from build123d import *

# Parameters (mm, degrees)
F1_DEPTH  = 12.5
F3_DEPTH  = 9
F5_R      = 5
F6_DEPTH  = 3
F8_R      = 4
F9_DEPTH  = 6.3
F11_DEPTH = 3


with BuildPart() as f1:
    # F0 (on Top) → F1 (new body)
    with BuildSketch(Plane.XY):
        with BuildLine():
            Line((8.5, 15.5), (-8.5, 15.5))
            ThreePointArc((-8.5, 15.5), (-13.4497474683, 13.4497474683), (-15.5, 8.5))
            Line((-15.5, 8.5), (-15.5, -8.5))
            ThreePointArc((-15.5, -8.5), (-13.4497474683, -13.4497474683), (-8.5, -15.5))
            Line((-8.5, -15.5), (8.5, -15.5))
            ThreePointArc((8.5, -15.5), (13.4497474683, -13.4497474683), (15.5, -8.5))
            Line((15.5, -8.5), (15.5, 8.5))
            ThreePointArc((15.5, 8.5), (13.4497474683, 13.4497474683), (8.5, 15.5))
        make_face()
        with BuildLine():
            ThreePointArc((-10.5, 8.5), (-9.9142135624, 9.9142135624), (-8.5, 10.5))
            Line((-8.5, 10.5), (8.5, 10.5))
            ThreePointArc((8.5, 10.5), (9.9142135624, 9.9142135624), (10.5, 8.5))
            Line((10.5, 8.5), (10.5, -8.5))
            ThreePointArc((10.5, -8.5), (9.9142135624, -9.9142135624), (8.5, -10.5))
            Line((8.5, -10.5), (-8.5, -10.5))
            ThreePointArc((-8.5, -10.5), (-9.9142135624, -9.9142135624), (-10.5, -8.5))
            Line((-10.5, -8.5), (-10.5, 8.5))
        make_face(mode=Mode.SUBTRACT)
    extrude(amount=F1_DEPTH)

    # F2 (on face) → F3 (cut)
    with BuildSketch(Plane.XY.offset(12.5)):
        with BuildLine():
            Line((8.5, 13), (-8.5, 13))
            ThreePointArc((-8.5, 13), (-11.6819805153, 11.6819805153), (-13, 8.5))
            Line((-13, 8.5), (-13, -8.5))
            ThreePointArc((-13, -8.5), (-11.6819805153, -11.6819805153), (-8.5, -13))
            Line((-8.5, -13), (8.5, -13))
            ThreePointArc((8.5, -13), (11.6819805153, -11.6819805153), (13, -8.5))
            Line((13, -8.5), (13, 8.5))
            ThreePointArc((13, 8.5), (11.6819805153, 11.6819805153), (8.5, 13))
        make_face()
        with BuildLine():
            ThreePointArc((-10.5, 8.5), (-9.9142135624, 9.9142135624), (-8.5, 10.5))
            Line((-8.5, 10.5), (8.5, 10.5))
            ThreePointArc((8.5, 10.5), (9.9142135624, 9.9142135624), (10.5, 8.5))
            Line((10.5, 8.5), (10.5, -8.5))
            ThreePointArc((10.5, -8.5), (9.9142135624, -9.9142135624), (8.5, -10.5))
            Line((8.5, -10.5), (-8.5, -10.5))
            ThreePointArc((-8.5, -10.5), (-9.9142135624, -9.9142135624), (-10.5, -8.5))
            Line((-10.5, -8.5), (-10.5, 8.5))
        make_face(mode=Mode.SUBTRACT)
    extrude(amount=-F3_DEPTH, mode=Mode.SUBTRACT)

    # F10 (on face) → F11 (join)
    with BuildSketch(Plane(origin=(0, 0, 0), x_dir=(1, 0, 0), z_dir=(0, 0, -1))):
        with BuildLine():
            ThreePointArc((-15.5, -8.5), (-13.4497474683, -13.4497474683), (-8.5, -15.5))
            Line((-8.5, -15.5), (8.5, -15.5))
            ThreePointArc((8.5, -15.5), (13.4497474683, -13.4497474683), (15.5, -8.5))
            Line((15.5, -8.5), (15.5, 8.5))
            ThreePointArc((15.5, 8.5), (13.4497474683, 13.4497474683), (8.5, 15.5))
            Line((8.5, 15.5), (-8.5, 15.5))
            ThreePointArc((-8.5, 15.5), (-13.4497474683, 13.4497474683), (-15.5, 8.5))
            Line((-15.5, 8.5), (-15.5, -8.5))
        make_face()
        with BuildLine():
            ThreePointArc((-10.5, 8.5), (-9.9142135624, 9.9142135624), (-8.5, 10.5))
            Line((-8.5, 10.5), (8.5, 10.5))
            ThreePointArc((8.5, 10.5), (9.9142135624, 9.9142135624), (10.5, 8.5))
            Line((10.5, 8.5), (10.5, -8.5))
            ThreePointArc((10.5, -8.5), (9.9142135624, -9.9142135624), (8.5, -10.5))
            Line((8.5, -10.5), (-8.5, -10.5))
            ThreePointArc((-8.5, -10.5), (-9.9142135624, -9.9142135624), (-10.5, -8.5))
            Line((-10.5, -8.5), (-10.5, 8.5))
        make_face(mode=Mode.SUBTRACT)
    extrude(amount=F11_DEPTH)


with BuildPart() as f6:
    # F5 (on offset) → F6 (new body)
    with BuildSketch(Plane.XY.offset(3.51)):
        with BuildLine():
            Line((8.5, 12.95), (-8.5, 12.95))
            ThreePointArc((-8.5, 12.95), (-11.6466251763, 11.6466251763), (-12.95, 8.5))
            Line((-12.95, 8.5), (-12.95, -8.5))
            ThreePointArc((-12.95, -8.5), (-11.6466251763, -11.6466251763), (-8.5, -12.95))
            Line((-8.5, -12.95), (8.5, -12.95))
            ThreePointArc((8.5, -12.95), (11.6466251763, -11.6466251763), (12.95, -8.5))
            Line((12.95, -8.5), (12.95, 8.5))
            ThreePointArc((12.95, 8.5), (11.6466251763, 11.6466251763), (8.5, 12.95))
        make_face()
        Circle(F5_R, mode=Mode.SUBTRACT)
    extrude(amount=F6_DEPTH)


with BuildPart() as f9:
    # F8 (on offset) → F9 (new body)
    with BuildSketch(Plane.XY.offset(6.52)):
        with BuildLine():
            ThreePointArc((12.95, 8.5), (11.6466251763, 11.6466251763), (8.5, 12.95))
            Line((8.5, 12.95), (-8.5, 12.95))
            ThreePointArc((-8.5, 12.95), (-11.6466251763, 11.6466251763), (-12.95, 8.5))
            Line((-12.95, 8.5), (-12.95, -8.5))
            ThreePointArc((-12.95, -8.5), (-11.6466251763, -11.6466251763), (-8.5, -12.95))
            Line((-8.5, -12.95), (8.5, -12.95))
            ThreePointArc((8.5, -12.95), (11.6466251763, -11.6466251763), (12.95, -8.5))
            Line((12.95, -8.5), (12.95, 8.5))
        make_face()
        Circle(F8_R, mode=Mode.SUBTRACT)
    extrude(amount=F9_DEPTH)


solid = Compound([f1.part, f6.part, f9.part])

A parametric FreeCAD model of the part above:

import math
import FreeCAD as App
import Part
import Sketcher

V = App.Vector

doc = App.newDocument("Part")
params = doc.addObject("Spreadsheet::Sheet", "Params")
for row, (alias, value) in enumerate([
    ("sketch1_radius", "7 mm"),
    ("sketch1_radius2", "2 mm"),
    ("sketch1_width", "17 mm"),
    ("pad1_length", "12.5 mm"),
    ("sketch2_radius", "2 mm"),
    ("sketch2_radius2", "4.5 mm"),
    ("sketch2_width", "17 mm"),
    ("pocket1_length", "9 mm"),
    ("sketch3_radius", "7 mm"),
    ("sketch3_radius2", "2 mm"),
    ("sketch3_width", "17 mm"),
    ("pad2_length", "3 mm"),
    ("sketch4_diameter", "10 mm"),
    ("sketch4_width", "17 mm"),
    ("sketch4_radius", "4.45 mm"),
    ("pad3_length", "3 mm"),
    ("sketch5_diameter", "8 mm"),
    ("sketch5_width", "17 mm"),
    ("sketch5_radius", "4.45 mm"),
    ("pad4_length", "6.3 mm"),
], start=1):
    params.set(f"A{row}", alias)
    params.set(f"B{row}", "=" + value)
    params.setAlias(f"B{row}", alias)

body = doc.addObject("PartDesign::Body", "Body")

# Sketch on XY plane
sketch1 = doc.addObject("Sketcher::SketchObject", "Sketch")
body.addObject(sketch1)
sketch1.AttachmentSupport = (doc.XY_Plane, [""])
sketch1.MapMode = "FlatFace"
sketch1.addGeometry([
    Part.LineSegment(V(8.5, 15.5, 0), V(-8.5, 15.5, 0)),  # 0
    Part.ArcOfCircle(Part.Circle(V(-8.5, 8.5, 0), V(0, 0, 1), 7), math.radians(90), math.radians(180)),  # 1
    Part.LineSegment(V(-15.5, 8.5, 0), V(-15.5, -8.5, 0)),  # 2
    Part.ArcOfCircle(Part.Circle(V(-8.5, -8.5, 0), V(0, 0, 1), 7), math.radians(180), math.radians(270)),  # 3
    Part.LineSegment(V(-8.5, -15.5, 0), V(8.5, -15.5, 0)),  # 4
    Part.ArcOfCircle(Part.Circle(V(8.5, -8.5, 0), V(0, 0, 1), 7), math.radians(-90), math.radians(0)),  # 5
    Part.LineSegment(V(15.5, -8.5, 0), V(15.5, 8.5, 0)),  # 6
    Part.ArcOfCircle(Part.Circle(V(8.5, 8.5, 0), V(0, 0, 1), 7), math.radians(0), math.radians(90)),  # 7
    Part.LineSegment(V(-10.5, -8.5, 0), V(-10.5, 8.5, 0)),  # 8
    Part.ArcOfCircle(Part.Circle(V(-8.5, 8.5, 0), V(0, 0, 1), 2), math.radians(90), math.radians(180)),  # 9
    Part.LineSegment(V(-8.5, 10.5, 0), V(8.5, 10.5, 0)),  # 10
    Part.ArcOfCircle(Part.Circle(V(8.5, 8.5, 0), V(0, 0, 1), 2), math.radians(0), math.radians(90)),  # 11
    Part.LineSegment(V(10.5, 8.5, 0), V(10.5, -8.5, 0)),  # 12
    Part.ArcOfCircle(Part.Circle(V(8.5, -8.5, 0), V(0, 0, 1), 2), math.radians(-90), math.radians(0)),  # 13
    Part.LineSegment(V(8.5, -10.5, 0), V(-8.5, -10.5, 0)),  # 14
    Part.ArcOfCircle(Part.Circle(V(-8.5, -8.5, 0), V(0, 0, 1), 2), math.radians(180), math.radians(270)),  # 15
], False)
sketch1.addConstraint([
    Sketcher.Constraint("Tangent", 0, 2, 1, 1),
    Sketcher.Constraint("Tangent", 1, 2, 2, 1),
    Sketcher.Constraint("Tangent", 2, 2, 3, 1),
    Sketcher.Constraint("Tangent", 3, 2, 4, 1),
    Sketcher.Constraint("Tangent", 4, 2, 5, 1),
    Sketcher.Constraint("Tangent", 5, 2, 6, 1),
    Sketcher.Constraint("Tangent", 6, 2, 7, 1),
    Sketcher.Constraint("Tangent", 7, 2, 0, 1),
    Sketcher.Constraint("Tangent", 8, 2, 9, 2),
    Sketcher.Constraint("Tangent", 9, 1, 10, 1),
    Sketcher.Constraint("Tangent", 10, 2, 11, 2),
    Sketcher.Constraint("Tangent", 11, 1, 12, 1),
    Sketcher.Constraint("Tangent", 12, 2, 13, 2),
    Sketcher.Constraint("Tangent", 13, 1, 14, 1),
    Sketcher.Constraint("Tangent", 14, 2, 15, 2),
    Sketcher.Constraint("Tangent", 15, 1, 8, 1),
    Sketcher.Constraint("Horizontal", 0),
    Sketcher.Constraint("Vertical", 2),
    Sketcher.Constraint("Horizontal", 4),
    Sketcher.Constraint("Vertical", 6),
    Sketcher.Constraint("Vertical", 8),
    Sketcher.Constraint("Horizontal", 10),
    Sketcher.Constraint("Vertical", 12),
    Sketcher.Constraint("Horizontal", 14),
    Sketcher.Constraint("Coincident", 9, 3, 1, 3),
    Sketcher.Constraint("Coincident", 11, 3, 7, 3),
    Sketcher.Constraint("Coincident", 13, 3, 5, 3),
    Sketcher.Constraint("Equal", 1, 3),
    Sketcher.Constraint("Equal", 3, 5),
    Sketcher.Constraint("Equal", 5, 7),
    Sketcher.Constraint("Equal", 13, 15),
    Sketcher.Constraint("Symmetric", 1, 3, 5, 3, -1, 1),
    Sketcher.Constraint("Equal", 14, 2),
    Sketcher.Constraint("Radius", 1, 7.0),
    Sketcher.Constraint("Radius", 9, 2.0),
    Sketcher.Constraint("DistanceX", 0, 2, 0, 1, 17.0),
])
sketch1.setExpression("Constraints[33]", "Params.sketch1_radius")
sketch1.setExpression("Constraints[34]", "Params.sketch1_radius2")
sketch1.setExpression("Constraints[35]", "Params.sketch1_width")
pad1 = doc.addObject("PartDesign::Pad", "Pad")
body.addObject(pad1)
pad1.Profile = sketch1
pad1.setExpression("Length", "Params.pad1_length")

# Sketch on XY plane
sketch2 = doc.addObject("Sketcher::SketchObject", "Sketch001")
body.addObject(sketch2)
sketch2.AttachmentSupport = (doc.XY_Plane, [""])
sketch2.MapMode = "FlatFace"
sketch2.AttachmentOffset = App.Placement(V(0, 0, 12.5), App.Rotation())
sketch2.addGeometry([
    Part.LineSegment(V(8.5, 13, 0), V(-8.5, 13, 0)),  # 0
    Part.ArcOfCircle(Part.Circle(V(-8.5, 8.5, 0), V(0, 0, 1), 4.5), math.radians(90), math.radians(180)),  # 1
    Part.LineSegment(V(-13, 8.5, 0), V(-13, -8.5, 0)),  # 2
    Part.ArcOfCircle(Part.Circle(V(-8.5, -8.5, 0), V(0, 0, 1), 4.5), math.radians(180), math.radians(270)),  # 3
    Part.LineSegment(V(-8.5, -13, 0), V(8.5, -13, 0)),  # 4
    Part.ArcOfCircle(Part.Circle(V(8.5, -8.5, 0), V(0, 0, 1), 4.5), math.radians(-90), math.radians(0)),  # 5
    Part.LineSegment(V(13, -8.5, 0), V(13, 8.5, 0)),  # 6
    Part.ArcOfCircle(Part.Circle(V(8.5, 8.5, 0), V(0, 0, 1), 4.5), math.radians(0), math.radians(90)),  # 7
    Part.LineSegment(V(-10.5, -8.5, 0), V(-10.5, 8.5, 0)),  # 8
    Part.ArcOfCircle(Part.Circle(V(-8.5, 8.5, 0), V(0, 0, 1), 2), math.radians(90), math.radians(180)),  # 9
    Part.LineSegment(V(-8.5, 10.5, 0), V(8.5, 10.5, 0)),  # 10
    Part.ArcOfCircle(Part.Circle(V(8.5, 8.5, 0), V(0, 0, 1), 2), math.radians(0), math.radians(90)),  # 11
    Part.LineSegment(V(10.5, 8.5, 0), V(10.5, -8.5, 0)),  # 12
    Part.ArcOfCircle(Part.Circle(V(8.5, -8.5, 0), V(0, 0, 1), 2), math.radians(-90), math.radians(0)),  # 13
    Part.LineSegment(V(8.5, -10.5, 0), V(-8.5, -10.5, 0)),  # 14
    Part.ArcOfCircle(Part.Circle(V(-8.5, -8.5, 0), V(0, 0, 1), 2), math.radians(180), math.radians(270)),  # 15
], False)
sketch2.addConstraint([
    Sketcher.Constraint("Tangent", 0, 2, 1, 1),
    Sketcher.Constraint("Tangent", 1, 2, 2, 1),
    Sketcher.Constraint("Tangent", 2, 2, 3, 1),
    Sketcher.Constraint("Tangent", 3, 2, 4, 1),
    Sketcher.Constraint("Tangent", 4, 2, 5, 1),
    Sketcher.Constraint("Tangent", 5, 2, 6, 1),
    Sketcher.Constraint("Tangent", 6, 2, 7, 1),
    Sketcher.Constraint("Tangent", 7, 2, 0, 1),
    Sketcher.Constraint("Tangent", 8, 2, 9, 2),
    Sketcher.Constraint("Tangent", 9, 1, 10, 1),
    Sketcher.Constraint("Tangent", 10, 2, 11, 2),
    Sketcher.Constraint("Tangent", 11, 1, 12, 1),
    Sketcher.Constraint("Tangent", 12, 2, 13, 2),
    Sketcher.Constraint("Tangent", 13, 1, 14, 1),
    Sketcher.Constraint("Tangent", 14, 2, 15, 2),
    Sketcher.Constraint("Tangent", 15, 1, 8, 1),
    Sketcher.Constraint("Horizontal", 0),
    Sketcher.Constraint("Vertical", 2),
    Sketcher.Constraint("Horizontal", 4),
    Sketcher.Constraint("Vertical", 6),
    Sketcher.Constraint("Vertical", 8),
    Sketcher.Constraint("Horizontal", 10),
    Sketcher.Constraint("Vertical", 12),
    Sketcher.Constraint("Horizontal", 14),
    Sketcher.Constraint("Coincident", 9, 3, 1, 3),
    Sketcher.Constraint("Coincident", 11, 3, 7, 3),
    Sketcher.Constraint("Coincident", 13, 3, 5, 3),
    Sketcher.Constraint("Equal", 1, 3),
    Sketcher.Constraint("Equal", 3, 5),
    Sketcher.Constraint("Equal", 5, 7),
    Sketcher.Constraint("Equal", 13, 15),
    Sketcher.Constraint("Symmetric", 1, 3, 5, 3, -1, 1),
    Sketcher.Constraint("Equal", 14, 2),
    Sketcher.Constraint("Radius", 9, 2.0),
    Sketcher.Constraint("Radius", 1, 4.5),
    Sketcher.Constraint("DistanceX", 0, 2, 0, 1, 17.0),
])
sketch2.setExpression("Constraints[33]", "Params.sketch2_radius")
sketch2.setExpression("Constraints[34]", "Params.sketch2_radius2")
sketch2.setExpression("Constraints[35]", "Params.sketch2_width")
pocket1 = doc.addObject("PartDesign::Pocket", "Pocket")
body.addObject(pocket1)
pocket1.Profile = sketch2
pocket1.setExpression("Length", "Params.pocket1_length")

# Sketch on XY plane
sketch3 = doc.addObject("Sketcher::SketchObject", "Sketch002")
body.addObject(sketch3)
sketch3.AttachmentSupport = (doc.XY_Plane, [""])
sketch3.MapMode = "FlatFace"
sketch3.addGeometry([
    Part.ArcOfCircle(Part.Circle(V(-8.5, 8.5, 0), V(0, 0, 1), 7), math.radians(90), math.radians(180)),  # 0
    Part.LineSegment(V(-8.5, 15.5, 0), V(8.5, 15.5, 0)),  # 1
    Part.ArcOfCircle(Part.Circle(V(8.5, 8.5, 0), V(0, 0, 1), 7), math.radians(0), math.radians(90)),  # 2
    Part.LineSegment(V(15.5, 8.5, 0), V(15.5, -8.5, 0)),  # 3
    Part.ArcOfCircle(Part.Circle(V(8.5, -8.5, 0), V(0, 0, 1), 7), math.radians(-90), math.radians(0)),  # 4
    Part.LineSegment(V(8.5, -15.5, 0), V(-8.5, -15.5, 0)),  # 5
    Part.ArcOfCircle(Part.Circle(V(-8.5, -8.5, 0), V(0, 0, 1), 7), math.radians(180), math.radians(270)),  # 6
    Part.LineSegment(V(-15.5, -8.5, 0), V(-15.5, 8.5, 0)),  # 7
    Part.LineSegment(V(-10.5, 8.5, 0), V(-10.5, -8.5, 0)),  # 8
    Part.ArcOfCircle(Part.Circle(V(-8.5, -8.5, 0), V(0, 0, 1), 2), math.radians(180), math.radians(270)),  # 9
    Part.LineSegment(V(-8.5, -10.5, 0), V(8.5, -10.5, 0)),  # 10
    Part.ArcOfCircle(Part.Circle(V(8.5, -8.5, 0), V(0, 0, 1), 2), math.radians(-90), math.radians(0)),  # 11
    Part.LineSegment(V(10.5, -8.5, 0), V(10.5, 8.5, 0)),  # 12
    Part.ArcOfCircle(Part.Circle(V(8.5, 8.5, 0), V(0, 0, 1), 2), math.radians(0), math.radians(90)),  # 13
    Part.LineSegment(V(8.5, 10.5, 0), V(-8.5, 10.5, 0)),  # 14
    Part.ArcOfCircle(Part.Circle(V(-8.5, 8.5, 0), V(0, 0, 1), 2), math.radians(90), math.radians(180)),  # 15
], False)
sketch3.addConstraint([
    Sketcher.Constraint("Tangent", 0, 1, 1, 1),
    Sketcher.Constraint("Tangent", 1, 2, 2, 2),
    Sketcher.Constraint("Tangent", 2, 1, 3, 1),
    Sketcher.Constraint("Tangent", 3, 2, 4, 2),
    Sketcher.Constraint("Tangent", 4, 1, 5, 1),
    Sketcher.Constraint("Tangent", 5, 2, 6, 2),
    Sketcher.Constraint("Tangent", 6, 1, 7, 1),
    Sketcher.Constraint("Tangent", 7, 2, 0, 2),
    Sketcher.Constraint("Tangent", 8, 2, 9, 1),
    Sketcher.Constraint("Tangent", 9, 2, 10, 1),
    Sketcher.Constraint("Tangent", 10, 2, 11, 1),
    Sketcher.Constraint("Tangent", 11, 2, 12, 1),
    Sketcher.Constraint("Tangent", 12, 2, 13, 1),
    Sketcher.Constraint("Tangent", 13, 2, 14, 1),
    Sketcher.Constraint("Tangent", 14, 2, 15, 1),
    Sketcher.Constraint("Tangent", 15, 2, 8, 1),
    Sketcher.Constraint("Horizontal", 1),
    Sketcher.Constraint("Vertical", 3),
    Sketcher.Constraint("Horizontal", 5),
    Sketcher.Constraint("Vertical", 7),
    Sketcher.Constraint("Vertical", 8),
    Sketcher.Constraint("Horizontal", 10),
    Sketcher.Constraint("Vertical", 12),
    Sketcher.Constraint("Horizontal", 14),
    Sketcher.Constraint("Coincident", 9, 3, 6, 3),
    Sketcher.Constraint("Coincident", 11, 3, 4, 3),
    Sketcher.Constraint("Coincident", 13, 3, 2, 3),
    Sketcher.Constraint("Equal", 0, 2),
    Sketcher.Constraint("Equal", 2, 4),
    Sketcher.Constraint("Equal", 4, 6),
    Sketcher.Constraint("Equal", 13, 15),
    Sketcher.Constraint("Symmetric", 0, 3, 4, 3, -1, 1),
    Sketcher.Constraint("Equal", 14, 3),
    Sketcher.Constraint("Radius", 0, 7.0),
    Sketcher.Constraint("Radius", 9, 2.0),
    Sketcher.Constraint("DistanceX", 1, 1, 1, 2, 17.0),
])
sketch3.setExpression("Constraints[33]", "Params.sketch3_radius")
sketch3.setExpression("Constraints[34]", "Params.sketch3_radius2")
sketch3.setExpression("Constraints[35]", "Params.sketch3_width")
pad2 = doc.addObject("PartDesign::Pad", "Pad001")
body.addObject(pad2)
pad2.Profile = sketch3
pad2.setExpression("Length", "Params.pad2_length")
pad2.Reversed = True
body2 = doc.addObject("PartDesign::Body", "Body001")

# Sketch on XY plane
sketch4 = doc.addObject("Sketcher::SketchObject", "Sketch003")
body2.addObject(sketch4)
sketch4.AttachmentSupport = (doc.getObject("XY_Plane001"), [""])
sketch4.MapMode = "FlatFace"
sketch4.AttachmentOffset = App.Placement(V(0, 0, 3.51), App.Rotation())
sketch4.addGeometry([
    Part.LineSegment(V(8.5, 12.9, 0), V(-8.5, 12.9, 0)),  # 0
    Part.ArcOfCircle(Part.Circle(V(-8.5, 8.5, 0), V(0, 0, 1), 4.5), math.radians(90), math.radians(180)),  # 1
    Part.LineSegment(V(-12.9, 8.5, 0), V(-12.9, -8.5, 0)),  # 2
    Part.ArcOfCircle(Part.Circle(V(-8.5, -8.5, 0), V(0, 0, 1), 4.5), math.radians(180), math.radians(270)),  # 3
    Part.LineSegment(V(-8.5, -12.9, 0), V(8.5, -12.9, 0)),  # 4
    Part.ArcOfCircle(Part.Circle(V(8.5, -8.5, 0), V(0, 0, 1), 4.5), math.radians(-90), math.radians(0)),  # 5
    Part.LineSegment(V(12.9, -8.5, 0), V(12.9, 8.5, 0)),  # 6
    Part.ArcOfCircle(Part.Circle(V(8.5, 8.5, 0), V(0, 0, 1), 4.5), math.radians(0), math.radians(90)),  # 7
    Part.Circle(V(0, 0, 0), V(0, 0, 1), 5),  # 8
], False)
sketch4.addConstraint([
    Sketcher.Constraint("Tangent", 0, 2, 1, 1),
    Sketcher.Constraint("Tangent", 1, 2, 2, 1),
    Sketcher.Constraint("Tangent", 2, 2, 3, 1),
    Sketcher.Constraint("Tangent", 3, 2, 4, 1),
    Sketcher.Constraint("Tangent", 4, 2, 5, 1),
    Sketcher.Constraint("Tangent", 5, 2, 6, 1),
    Sketcher.Constraint("Tangent", 6, 2, 7, 1),
    Sketcher.Constraint("Tangent", 7, 2, 0, 1),
    Sketcher.Constraint("Horizontal", 0),
    Sketcher.Constraint("Vertical", 2),
    Sketcher.Constraint("Horizontal", 4),
    Sketcher.Constraint("Vertical", 6),
    Sketcher.Constraint("Coincident", 8, 3, -1, 1),
    Sketcher.Constraint("Equal", 1, 3),
    Sketcher.Constraint("Equal", 3, 5),
    Sketcher.Constraint("Equal", 5, 7),
    Sketcher.Constraint("Symmetric", 1, 3, 5, 3, -1, 1),
    Sketcher.Constraint("Equal", 4, 2),
    Sketcher.Constraint("Diameter", 8, 10.0),
    Sketcher.Constraint("DistanceX", 0, 2, 0, 1, 17.0),
    Sketcher.Constraint("Radius", 1, 4.45),
])
sketch4.setExpression("Constraints[18]", "Params.sketch4_diameter")
sketch4.setExpression("Constraints[19]", "Params.sketch4_width")
sketch4.setExpression("Constraints[20]", "Params.sketch4_radius")
pad3 = doc.addObject("PartDesign::Pad", "Pad002")
body2.addObject(pad3)
pad3.Profile = sketch4
pad3.setExpression("Length", "Params.pad3_length")
body3 = doc.addObject("PartDesign::Body", "Body002")

# Sketch on XY plane
sketch5 = doc.addObject("Sketcher::SketchObject", "Sketch004")
body3.addObject(sketch5)
sketch5.AttachmentSupport = (doc.getObject("XY_Plane002"), [""])
sketch5.MapMode = "FlatFace"
sketch5.AttachmentOffset = App.Placement(V(0, 0, 6.52), App.Rotation())
sketch5.addGeometry([
    Part.ArcOfCircle(Part.Circle(V(8.5, 8.5, 0), V(0, 0, 1), 4.5), math.radians(0), math.radians(90)),  # 0
    Part.LineSegment(V(8.5, 12.9, 0), V(-8.5, 12.9, 0)),  # 1
    Part.ArcOfCircle(Part.Circle(V(-8.5, 8.5, 0), V(0, 0, 1), 4.5), math.radians(90), math.radians(180)),  # 2
    Part.LineSegment(V(-12.9, 8.5, 0), V(-12.9, -8.5, 0)),  # 3
    Part.ArcOfCircle(Part.Circle(V(-8.5, -8.5, 0), V(0, 0, 1), 4.5), math.radians(180), math.radians(270)),  # 4
    Part.LineSegment(V(-8.5, -12.9, 0), V(8.5, -12.9, 0)),  # 5
    Part.ArcOfCircle(Part.Circle(V(8.5, -8.5, 0), V(0, 0, 1), 4.5), math.radians(-90), math.radians(0)),  # 6
    Part.LineSegment(V(12.9, -8.5, 0), V(12.9, 8.5, 0)),  # 7
    Part.Circle(V(0, 0, 0), V(0, 0, 1), 4),  # 8
], False)
sketch5.addConstraint([
    Sketcher.Constraint("Tangent", 0, 2, 1, 1),
    Sketcher.Constraint("Tangent", 1, 2, 2, 1),
    Sketcher.Constraint("Tangent", 2, 2, 3, 1),
    Sketcher.Constraint("Tangent", 3, 2, 4, 1),
    Sketcher.Constraint("Tangent", 4, 2, 5, 1),
    Sketcher.Constraint("Tangent", 5, 2, 6, 1),
    Sketcher.Constraint("Tangent", 6, 2, 7, 1),
    Sketcher.Constraint("Tangent", 7, 2, 0, 1),
    Sketcher.Constraint("Horizontal", 1),
    Sketcher.Constraint("Vertical", 3),
    Sketcher.Constraint("Horizontal", 5),
    Sketcher.Constraint("Vertical", 7),
    Sketcher.Constraint("Coincident", 8, 3, -1, 1),
    Sketcher.Constraint("Equal", 0, 2),
    Sketcher.Constraint("Equal", 2, 4),
    Sketcher.Constraint("Equal", 4, 6),
    Sketcher.Constraint("Symmetric", 0, 3, 4, 3, -1, 1),
    Sketcher.Constraint("Equal", 5, 3),
    Sketcher.Constraint("Diameter", 8, 8.0),
    Sketcher.Constraint("DistanceX", 1, 2, 1, 1, 17.0),
    Sketcher.Constraint("Radius", 0, 4.45),
])
sketch5.setExpression("Constraints[18]", "Params.sketch5_diameter")
sketch5.setExpression("Constraints[19]", "Params.sketch5_width")
sketch5.setExpression("Constraints[20]", "Params.sketch5_radius")
pad4 = doc.addObject("PartDesign::Pad", "Pad003")
body3.addObject(pad4)
pad4.Profile = sketch5
pad4.setExpression("Length", "Params.pad4_length")

doc.recompute()
